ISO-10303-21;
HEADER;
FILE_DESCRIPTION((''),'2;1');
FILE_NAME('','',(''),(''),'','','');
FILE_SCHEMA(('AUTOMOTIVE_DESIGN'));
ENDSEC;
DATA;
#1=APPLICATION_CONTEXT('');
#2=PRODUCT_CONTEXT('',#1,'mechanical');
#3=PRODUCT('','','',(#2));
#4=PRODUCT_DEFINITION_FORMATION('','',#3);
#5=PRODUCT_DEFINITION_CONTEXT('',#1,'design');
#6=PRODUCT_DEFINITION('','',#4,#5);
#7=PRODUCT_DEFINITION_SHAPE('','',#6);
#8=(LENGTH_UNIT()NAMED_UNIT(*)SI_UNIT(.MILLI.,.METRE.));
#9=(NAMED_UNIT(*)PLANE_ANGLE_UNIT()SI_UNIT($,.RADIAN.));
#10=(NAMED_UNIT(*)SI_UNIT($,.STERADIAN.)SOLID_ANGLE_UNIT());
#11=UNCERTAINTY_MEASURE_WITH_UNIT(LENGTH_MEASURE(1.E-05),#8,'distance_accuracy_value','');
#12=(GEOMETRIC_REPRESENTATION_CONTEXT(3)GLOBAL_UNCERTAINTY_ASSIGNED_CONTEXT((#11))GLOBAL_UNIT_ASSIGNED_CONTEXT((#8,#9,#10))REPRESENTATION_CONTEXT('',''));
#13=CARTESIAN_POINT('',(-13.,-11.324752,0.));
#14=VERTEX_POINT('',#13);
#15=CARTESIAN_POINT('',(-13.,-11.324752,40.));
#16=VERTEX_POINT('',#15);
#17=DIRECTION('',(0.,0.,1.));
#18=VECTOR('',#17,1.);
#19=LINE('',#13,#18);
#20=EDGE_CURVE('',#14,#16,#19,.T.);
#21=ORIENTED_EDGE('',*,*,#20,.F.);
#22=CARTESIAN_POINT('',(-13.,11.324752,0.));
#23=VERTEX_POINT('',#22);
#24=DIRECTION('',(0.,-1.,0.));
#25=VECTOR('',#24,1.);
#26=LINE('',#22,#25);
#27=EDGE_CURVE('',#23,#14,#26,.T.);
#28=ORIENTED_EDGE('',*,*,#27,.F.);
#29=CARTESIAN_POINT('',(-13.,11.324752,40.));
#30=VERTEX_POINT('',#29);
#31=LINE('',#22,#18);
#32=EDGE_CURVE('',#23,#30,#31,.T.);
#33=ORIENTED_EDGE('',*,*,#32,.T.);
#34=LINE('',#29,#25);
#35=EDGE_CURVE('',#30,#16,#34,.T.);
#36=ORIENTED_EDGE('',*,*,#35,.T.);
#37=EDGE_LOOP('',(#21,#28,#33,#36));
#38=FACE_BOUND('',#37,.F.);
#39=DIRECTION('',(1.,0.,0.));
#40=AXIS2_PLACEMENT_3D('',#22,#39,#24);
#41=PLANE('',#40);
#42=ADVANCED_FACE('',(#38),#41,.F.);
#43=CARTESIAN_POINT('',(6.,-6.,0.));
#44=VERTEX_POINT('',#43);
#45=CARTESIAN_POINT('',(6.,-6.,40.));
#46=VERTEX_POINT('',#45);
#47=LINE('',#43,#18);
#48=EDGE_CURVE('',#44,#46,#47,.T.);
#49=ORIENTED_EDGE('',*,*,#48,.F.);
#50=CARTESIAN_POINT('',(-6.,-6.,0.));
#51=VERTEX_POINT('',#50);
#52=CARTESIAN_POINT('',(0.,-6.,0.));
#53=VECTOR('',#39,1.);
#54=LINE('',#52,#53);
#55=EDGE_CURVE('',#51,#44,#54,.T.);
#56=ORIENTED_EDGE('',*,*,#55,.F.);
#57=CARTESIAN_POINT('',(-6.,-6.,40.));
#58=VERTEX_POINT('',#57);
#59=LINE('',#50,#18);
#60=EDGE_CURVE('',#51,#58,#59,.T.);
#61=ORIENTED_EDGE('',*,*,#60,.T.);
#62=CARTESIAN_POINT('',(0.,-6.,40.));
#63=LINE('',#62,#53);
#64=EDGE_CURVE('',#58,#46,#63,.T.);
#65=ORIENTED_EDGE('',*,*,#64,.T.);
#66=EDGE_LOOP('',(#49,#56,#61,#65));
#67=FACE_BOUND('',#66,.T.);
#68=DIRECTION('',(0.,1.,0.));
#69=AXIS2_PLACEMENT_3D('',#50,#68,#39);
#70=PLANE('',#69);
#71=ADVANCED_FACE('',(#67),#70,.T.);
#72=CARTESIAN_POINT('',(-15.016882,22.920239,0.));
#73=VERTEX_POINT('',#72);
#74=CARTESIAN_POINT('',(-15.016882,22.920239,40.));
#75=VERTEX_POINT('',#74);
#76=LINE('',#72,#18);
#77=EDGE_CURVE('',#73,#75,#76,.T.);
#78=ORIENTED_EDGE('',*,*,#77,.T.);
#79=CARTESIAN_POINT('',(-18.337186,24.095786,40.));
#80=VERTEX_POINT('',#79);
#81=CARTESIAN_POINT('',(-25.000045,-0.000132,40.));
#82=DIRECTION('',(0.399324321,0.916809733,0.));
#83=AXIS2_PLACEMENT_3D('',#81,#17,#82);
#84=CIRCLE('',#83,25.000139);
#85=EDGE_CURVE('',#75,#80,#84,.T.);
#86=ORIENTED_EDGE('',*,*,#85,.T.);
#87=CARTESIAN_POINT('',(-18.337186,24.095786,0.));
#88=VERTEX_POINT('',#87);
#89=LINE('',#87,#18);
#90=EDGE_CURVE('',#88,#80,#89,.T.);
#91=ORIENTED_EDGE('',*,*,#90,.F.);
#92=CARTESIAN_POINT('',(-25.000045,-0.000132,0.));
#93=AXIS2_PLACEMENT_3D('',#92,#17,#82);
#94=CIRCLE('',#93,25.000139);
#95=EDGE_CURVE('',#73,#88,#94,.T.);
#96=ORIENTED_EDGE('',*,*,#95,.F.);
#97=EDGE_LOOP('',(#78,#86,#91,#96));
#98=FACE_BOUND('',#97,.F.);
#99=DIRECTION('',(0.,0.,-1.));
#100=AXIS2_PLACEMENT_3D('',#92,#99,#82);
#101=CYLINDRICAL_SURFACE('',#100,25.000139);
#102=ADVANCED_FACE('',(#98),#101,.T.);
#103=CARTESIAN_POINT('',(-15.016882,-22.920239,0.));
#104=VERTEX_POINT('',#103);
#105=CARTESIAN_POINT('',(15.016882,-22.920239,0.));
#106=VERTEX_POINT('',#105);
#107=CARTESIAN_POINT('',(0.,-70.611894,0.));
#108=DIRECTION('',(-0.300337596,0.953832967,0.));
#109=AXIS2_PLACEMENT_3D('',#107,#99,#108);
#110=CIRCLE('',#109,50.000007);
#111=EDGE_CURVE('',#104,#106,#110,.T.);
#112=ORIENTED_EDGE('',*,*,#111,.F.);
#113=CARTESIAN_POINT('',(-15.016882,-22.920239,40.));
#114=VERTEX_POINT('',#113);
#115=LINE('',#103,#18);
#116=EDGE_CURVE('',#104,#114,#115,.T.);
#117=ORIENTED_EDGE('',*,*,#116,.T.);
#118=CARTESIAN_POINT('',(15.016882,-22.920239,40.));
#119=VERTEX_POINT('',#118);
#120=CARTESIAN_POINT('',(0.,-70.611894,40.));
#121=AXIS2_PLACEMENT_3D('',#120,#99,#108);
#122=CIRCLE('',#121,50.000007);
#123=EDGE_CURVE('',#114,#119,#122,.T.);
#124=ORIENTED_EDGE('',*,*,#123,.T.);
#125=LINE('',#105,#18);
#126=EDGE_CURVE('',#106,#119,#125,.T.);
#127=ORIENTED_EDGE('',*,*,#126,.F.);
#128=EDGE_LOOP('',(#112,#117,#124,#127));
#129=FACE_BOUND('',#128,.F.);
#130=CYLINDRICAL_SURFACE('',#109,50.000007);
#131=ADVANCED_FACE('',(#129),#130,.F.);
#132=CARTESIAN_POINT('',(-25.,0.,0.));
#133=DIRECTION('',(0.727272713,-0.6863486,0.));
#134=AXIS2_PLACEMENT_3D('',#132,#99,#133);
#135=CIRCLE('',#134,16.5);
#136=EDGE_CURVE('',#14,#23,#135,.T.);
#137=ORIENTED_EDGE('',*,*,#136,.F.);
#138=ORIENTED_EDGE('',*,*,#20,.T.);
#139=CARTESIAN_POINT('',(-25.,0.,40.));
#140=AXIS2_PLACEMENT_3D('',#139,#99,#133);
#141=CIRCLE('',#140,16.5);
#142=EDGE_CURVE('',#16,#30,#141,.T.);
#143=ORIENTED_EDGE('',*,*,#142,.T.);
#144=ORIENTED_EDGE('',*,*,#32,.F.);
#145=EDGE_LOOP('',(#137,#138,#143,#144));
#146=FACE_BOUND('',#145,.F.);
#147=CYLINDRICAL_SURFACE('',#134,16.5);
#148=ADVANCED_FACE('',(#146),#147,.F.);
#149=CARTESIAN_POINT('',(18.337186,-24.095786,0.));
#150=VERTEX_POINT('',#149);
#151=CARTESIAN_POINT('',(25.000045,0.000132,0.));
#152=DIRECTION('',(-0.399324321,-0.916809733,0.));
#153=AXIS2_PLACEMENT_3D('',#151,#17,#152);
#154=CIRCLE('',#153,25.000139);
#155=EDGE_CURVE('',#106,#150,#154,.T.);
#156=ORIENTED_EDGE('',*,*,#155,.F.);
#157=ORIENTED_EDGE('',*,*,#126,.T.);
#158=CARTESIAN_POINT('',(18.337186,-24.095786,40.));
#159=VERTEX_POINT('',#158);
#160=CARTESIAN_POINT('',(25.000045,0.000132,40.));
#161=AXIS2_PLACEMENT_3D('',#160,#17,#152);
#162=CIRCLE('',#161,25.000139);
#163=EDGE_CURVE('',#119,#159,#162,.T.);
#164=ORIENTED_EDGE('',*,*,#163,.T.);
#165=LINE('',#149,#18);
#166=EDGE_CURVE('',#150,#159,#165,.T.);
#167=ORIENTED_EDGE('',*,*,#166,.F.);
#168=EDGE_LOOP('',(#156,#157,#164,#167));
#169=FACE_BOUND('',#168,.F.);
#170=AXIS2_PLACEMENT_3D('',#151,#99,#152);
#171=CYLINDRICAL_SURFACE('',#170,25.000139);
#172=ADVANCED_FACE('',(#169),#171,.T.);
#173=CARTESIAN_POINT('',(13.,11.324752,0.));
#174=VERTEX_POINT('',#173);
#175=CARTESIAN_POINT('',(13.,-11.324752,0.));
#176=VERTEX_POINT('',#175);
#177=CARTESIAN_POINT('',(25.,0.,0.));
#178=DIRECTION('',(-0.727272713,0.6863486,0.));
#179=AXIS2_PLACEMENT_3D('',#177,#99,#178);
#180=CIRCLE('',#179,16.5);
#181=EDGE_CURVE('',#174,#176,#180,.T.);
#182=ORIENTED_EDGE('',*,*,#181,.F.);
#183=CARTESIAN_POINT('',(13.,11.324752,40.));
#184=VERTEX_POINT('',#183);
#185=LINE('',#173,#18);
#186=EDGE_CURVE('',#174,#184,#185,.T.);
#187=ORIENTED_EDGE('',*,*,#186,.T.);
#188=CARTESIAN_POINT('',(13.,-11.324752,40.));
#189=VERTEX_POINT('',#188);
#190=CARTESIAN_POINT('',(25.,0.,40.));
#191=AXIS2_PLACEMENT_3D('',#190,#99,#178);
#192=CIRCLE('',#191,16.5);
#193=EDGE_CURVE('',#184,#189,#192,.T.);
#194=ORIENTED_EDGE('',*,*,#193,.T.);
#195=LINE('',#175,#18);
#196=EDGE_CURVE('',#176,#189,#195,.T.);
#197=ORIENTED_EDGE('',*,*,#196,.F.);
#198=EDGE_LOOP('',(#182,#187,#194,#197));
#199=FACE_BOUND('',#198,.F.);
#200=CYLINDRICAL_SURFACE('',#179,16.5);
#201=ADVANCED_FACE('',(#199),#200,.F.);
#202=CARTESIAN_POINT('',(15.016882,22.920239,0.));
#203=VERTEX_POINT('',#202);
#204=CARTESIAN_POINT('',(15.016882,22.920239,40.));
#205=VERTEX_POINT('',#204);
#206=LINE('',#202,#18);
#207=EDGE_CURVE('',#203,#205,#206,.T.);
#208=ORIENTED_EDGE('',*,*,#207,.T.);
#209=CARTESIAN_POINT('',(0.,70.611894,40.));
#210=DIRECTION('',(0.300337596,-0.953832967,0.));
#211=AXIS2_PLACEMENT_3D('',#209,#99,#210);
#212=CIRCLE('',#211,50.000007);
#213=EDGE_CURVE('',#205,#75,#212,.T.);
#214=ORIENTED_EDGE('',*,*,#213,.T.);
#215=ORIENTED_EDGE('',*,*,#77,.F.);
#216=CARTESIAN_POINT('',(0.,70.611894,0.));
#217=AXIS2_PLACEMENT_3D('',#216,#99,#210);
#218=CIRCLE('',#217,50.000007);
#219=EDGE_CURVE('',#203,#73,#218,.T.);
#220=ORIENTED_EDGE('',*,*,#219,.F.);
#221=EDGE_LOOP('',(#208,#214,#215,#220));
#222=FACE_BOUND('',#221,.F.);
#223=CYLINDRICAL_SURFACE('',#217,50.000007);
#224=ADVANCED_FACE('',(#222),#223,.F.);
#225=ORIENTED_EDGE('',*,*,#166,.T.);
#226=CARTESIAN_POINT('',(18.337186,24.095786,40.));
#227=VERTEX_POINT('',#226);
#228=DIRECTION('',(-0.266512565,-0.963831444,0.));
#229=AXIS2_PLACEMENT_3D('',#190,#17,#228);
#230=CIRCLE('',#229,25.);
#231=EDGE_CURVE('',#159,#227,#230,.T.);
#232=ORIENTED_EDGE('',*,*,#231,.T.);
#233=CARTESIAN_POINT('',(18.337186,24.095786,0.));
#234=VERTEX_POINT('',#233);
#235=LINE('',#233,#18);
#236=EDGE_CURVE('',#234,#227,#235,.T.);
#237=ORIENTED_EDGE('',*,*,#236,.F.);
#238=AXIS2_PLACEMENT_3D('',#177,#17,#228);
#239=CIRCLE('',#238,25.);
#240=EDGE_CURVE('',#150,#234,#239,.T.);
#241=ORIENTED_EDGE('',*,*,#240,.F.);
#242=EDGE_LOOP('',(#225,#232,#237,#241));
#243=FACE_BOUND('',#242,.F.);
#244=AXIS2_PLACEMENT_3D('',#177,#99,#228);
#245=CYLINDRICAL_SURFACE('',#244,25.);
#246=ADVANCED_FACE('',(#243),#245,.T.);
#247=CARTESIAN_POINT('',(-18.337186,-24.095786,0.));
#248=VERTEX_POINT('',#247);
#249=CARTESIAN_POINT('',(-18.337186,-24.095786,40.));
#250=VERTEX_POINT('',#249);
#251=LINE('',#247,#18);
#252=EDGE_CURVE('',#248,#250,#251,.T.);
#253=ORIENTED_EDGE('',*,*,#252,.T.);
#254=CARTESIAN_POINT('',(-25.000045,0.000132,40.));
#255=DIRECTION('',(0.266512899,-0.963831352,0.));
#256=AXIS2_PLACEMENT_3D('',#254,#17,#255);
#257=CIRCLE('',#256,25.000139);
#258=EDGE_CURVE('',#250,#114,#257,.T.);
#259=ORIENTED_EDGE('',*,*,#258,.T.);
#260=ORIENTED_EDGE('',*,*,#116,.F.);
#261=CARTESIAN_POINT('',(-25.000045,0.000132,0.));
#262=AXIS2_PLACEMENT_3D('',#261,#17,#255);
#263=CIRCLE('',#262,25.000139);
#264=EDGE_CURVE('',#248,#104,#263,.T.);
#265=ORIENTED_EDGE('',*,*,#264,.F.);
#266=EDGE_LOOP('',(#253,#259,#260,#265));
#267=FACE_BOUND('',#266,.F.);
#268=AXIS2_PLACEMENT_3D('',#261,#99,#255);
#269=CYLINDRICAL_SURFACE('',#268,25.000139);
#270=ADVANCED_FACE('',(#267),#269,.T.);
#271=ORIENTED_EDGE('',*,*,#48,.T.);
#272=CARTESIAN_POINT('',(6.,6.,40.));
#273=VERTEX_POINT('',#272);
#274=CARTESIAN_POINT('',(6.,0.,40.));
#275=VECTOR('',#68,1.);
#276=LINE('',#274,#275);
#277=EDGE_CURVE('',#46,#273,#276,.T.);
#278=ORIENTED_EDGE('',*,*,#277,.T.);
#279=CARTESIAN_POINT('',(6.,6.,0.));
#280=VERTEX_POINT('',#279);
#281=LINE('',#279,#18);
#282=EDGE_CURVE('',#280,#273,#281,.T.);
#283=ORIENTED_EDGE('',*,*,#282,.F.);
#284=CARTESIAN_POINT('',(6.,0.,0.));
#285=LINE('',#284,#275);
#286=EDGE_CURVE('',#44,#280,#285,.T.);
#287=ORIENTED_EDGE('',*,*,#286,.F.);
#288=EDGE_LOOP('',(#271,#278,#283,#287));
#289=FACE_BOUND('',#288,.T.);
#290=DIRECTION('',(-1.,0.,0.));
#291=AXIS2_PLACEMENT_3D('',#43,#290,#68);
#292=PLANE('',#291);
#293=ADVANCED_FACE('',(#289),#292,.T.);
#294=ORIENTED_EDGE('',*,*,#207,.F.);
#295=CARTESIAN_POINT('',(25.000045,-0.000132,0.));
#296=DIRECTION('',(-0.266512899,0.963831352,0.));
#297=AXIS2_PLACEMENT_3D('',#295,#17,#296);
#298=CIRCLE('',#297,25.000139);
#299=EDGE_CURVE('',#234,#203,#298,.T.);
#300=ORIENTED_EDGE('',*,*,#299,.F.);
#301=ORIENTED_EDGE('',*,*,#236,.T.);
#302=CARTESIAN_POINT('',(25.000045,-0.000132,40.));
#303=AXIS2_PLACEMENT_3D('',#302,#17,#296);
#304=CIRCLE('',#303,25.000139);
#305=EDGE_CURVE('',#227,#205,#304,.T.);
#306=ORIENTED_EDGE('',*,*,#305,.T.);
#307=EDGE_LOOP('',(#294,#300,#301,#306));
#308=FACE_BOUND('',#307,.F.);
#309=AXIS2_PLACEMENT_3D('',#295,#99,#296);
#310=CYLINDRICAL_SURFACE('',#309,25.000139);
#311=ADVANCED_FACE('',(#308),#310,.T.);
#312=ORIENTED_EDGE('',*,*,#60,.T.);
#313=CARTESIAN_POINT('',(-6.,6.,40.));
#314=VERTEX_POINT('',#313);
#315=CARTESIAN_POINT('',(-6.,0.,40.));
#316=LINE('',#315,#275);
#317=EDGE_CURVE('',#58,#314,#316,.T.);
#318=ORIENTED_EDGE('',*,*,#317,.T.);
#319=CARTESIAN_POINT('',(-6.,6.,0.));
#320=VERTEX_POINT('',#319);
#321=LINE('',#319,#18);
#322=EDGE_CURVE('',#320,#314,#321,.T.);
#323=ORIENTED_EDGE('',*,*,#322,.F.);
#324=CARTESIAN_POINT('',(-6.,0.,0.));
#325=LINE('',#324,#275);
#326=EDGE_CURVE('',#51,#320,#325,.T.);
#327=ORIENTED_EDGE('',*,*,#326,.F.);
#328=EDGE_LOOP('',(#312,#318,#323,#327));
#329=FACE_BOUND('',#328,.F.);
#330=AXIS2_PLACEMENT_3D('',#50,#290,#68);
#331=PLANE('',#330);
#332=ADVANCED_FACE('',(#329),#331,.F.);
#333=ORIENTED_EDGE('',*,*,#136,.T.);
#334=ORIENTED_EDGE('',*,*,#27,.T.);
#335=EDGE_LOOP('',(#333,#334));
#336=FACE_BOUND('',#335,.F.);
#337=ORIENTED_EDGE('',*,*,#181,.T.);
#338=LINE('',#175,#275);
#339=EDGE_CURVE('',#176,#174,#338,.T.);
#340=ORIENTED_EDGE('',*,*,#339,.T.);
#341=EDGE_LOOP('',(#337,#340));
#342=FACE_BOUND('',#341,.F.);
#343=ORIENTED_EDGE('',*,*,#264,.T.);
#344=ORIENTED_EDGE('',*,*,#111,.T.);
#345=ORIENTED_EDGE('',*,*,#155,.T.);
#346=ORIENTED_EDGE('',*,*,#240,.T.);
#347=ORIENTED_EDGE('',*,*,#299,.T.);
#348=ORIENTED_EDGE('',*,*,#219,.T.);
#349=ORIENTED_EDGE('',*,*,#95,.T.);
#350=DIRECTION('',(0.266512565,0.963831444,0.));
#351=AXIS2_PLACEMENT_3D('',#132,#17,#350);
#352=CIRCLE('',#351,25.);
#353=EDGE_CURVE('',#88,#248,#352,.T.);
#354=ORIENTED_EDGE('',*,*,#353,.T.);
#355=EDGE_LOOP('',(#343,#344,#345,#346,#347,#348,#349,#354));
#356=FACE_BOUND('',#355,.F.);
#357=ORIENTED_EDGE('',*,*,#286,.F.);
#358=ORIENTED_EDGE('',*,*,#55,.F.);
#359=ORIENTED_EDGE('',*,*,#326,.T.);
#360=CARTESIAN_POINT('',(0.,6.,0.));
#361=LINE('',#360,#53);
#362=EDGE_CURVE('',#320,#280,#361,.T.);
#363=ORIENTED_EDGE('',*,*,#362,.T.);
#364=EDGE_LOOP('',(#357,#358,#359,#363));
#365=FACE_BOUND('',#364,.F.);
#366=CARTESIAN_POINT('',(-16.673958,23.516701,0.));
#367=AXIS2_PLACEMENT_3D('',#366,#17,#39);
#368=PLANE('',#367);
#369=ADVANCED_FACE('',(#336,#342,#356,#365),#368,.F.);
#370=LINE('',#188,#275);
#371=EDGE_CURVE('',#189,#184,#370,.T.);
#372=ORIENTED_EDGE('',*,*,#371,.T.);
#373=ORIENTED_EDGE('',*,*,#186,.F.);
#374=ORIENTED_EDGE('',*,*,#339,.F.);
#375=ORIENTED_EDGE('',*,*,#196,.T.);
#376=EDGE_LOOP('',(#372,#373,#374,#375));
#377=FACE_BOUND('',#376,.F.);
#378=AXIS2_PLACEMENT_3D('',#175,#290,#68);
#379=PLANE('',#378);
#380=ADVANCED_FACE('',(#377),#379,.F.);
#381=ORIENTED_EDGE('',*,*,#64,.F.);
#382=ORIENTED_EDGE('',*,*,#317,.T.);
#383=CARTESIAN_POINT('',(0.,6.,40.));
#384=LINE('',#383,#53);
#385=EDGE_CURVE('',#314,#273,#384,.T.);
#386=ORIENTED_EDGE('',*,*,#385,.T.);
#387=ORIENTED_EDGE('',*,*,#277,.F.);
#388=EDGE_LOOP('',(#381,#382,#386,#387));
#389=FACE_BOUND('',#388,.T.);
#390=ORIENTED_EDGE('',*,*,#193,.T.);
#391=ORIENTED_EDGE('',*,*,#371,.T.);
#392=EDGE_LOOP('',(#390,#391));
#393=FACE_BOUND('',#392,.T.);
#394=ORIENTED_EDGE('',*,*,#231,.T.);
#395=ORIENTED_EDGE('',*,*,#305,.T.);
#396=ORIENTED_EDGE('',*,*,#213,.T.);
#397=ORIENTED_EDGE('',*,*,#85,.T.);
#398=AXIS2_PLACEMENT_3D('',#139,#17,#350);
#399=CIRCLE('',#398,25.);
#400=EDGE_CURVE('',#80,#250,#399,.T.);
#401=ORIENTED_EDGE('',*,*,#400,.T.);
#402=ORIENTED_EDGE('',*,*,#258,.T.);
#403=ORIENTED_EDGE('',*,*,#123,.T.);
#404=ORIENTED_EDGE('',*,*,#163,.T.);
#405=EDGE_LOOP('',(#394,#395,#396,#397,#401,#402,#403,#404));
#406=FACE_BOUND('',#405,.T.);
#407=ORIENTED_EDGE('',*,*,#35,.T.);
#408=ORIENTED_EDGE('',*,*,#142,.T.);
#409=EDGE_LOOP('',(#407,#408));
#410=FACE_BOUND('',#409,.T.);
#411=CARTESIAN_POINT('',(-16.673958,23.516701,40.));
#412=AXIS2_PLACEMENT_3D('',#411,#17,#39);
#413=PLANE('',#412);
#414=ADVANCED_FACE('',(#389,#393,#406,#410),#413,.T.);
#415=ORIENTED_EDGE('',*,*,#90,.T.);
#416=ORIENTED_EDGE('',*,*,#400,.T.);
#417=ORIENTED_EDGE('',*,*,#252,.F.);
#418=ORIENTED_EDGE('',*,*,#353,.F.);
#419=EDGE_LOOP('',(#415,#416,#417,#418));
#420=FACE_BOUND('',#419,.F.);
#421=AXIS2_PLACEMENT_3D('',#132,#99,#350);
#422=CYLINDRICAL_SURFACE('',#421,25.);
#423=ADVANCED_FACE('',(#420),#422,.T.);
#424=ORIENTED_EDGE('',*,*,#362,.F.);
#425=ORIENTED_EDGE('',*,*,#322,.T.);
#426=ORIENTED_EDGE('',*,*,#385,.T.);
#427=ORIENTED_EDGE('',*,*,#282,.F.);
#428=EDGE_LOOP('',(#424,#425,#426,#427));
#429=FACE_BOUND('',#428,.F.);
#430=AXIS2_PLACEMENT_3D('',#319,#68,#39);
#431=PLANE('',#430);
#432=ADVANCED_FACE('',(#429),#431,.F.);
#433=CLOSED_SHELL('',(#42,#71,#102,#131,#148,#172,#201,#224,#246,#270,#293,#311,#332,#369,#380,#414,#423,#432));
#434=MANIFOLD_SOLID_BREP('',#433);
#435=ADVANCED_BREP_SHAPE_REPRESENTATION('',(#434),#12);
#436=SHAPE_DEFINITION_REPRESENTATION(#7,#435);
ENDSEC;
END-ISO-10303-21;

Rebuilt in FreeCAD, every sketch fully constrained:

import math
import FreeCAD as App
import Part
import Sketcher

V = App.Vector

doc = App.newDocument("Part")
params = doc.addObject("Spreadsheet::Sheet", "Params")
for row, (alias, value) in enumerate([
    ("sketch1_radius", "25 mm"),
    ("sketch1_radius2", "16.5 mm"),
    ("sketch1_width", "12 mm"),
    ("pad1_length", "40 mm"),
], start=1):
    params.set(f"A{row}", alias)
    params.set(f"B{row}", "=" + value)
    params.setAlias(f"B{row}", alias)

body = doc.addObject("PartDesign::Body", "Body")

# Sketch on XY plane
sketch1 = body.newObject("Sketcher::SketchObject", "Sketch")
sketch1.AttachmentSupport = (doc.getObject("XY_Plane"), [""])
sketch1.MapMode = "FlatFace"
sketch1.addGeometry([
    Part.ArcOfCircle(Part.Circle(V(-25, 0, 0), V(0, 0, 1), 25), math.radians(66.46), math.radians(74.54)),  # 0
    Part.ArcOfCircle(Part.Circle(V(-25, 0, 0), V(0, 0, 1), 25), math.radians(75), math.radians(285)),  # 1
    Part.ArcOfCircle(Part.Circle(V(-25, 0, 0), V(0, 0, 1), 25), math.radians(-74.54), math.radians(-66.46)),  # 2
    Part.ArcOfCircle(Part.Circle(V(0, -70.6, 0), V(0, 0, 1), 50), math.radians(73), math.radians(107)),  # 3
    Part.ArcOfCircle(Part.Circle(V(25, 0, 0), V(0, 0, 1), 25), math.radians(-113.54), math.radians(-105.46)),  # 4
    Part.ArcOfCircle(Part.Circle(V(25, 0, 0), V(0, 0, 1), 25), math.radians(-105), math.radians(105)),  # 5
    Part.ArcOfCircle(Part.Circle(V(25, 0, 0), V(0, 0, 1), 25), math.radians(105.46), math.radians(113.54)),  # 6
    Part.ArcOfCircle(Part.Circle(V(0, 70.6, 0), V(0, 0, 1), 50), math.radians(-107), math.radians(-73)),  # 7
    Part.LineSegment(V(-13, 11.3, 0), V(-13, -11.3, 0)),  # 8
    Part.ArcOfCircle(Part.Circle(V(-25, 0, 0), V(0, 0, 1), 16.5), math.radians(43), math.radians(317)),  # 9
    Part.LineSegment(V(6, -6, 0), V(-6, -6, 0)),  # 10
    Part.LineSegment(V(-6, -6, 0), V(-6, 6, 0)),  # 11
    Part.LineSegment(V(-6, 6, 0), V(6, 6, 0)),  # 12
    Part.LineSegment(V(6, 6, 0), V(6, -6, 0)),  # 13
    Part.ArcOfCircle(Part.Circle(V(25, 0, 0), V(0, 0, 1), 16.5), math.radians(-137), math.radians(137)),  # 14
    Part.LineSegment(V(13, -11.3, 0), V(13, 11.3, 0)),  # 15
], False)
sketch1.addConstraint([
    Sketcher.Constraint("Tangent", 0, 2, 1, 1),
    Sketcher.Constraint("Tangent", 1, 2, 2, 1),
    Sketcher.Constraint("Coincident", 2, 2, 3, 2),
    Sketcher.Constraint("Coincident", 3, 1, 4, 1),
    Sketcher.Constraint("Tangent", 4, 2, 5, 1),
    Sketcher.Constraint("Tangent", 5, 2, 6, 1),
    Sketcher.Constraint("Coincident", 6, 2, 7, 2),
    Sketcher.Constraint("Coincident", 7, 1, 0, 1),
    Sketcher.Constraint("Coincident", 8, 1, 9, 1),
    Sketcher.Constraint("Coincident", 9, 2, 8, 2),
    Sketcher.Constraint("Coincident", 10, 2, 11, 1),
    Sketcher.Constraint("Coincident", 11, 2, 12, 1),
    Sketcher.Constraint("Coincident", 12, 2, 13, 1),
    Sketcher.Constraint("Coincident", 13, 2, 10, 1),
    Sketcher.Constraint("Coincident", 14, 1, 15, 1),
    Sketcher.Constraint("Coincident", 15, 2, 14, 2),
    Sketcher.Constraint("Vertical", 8),
    Sketcher.Constraint("Horizontal", 10),
    Sketcher.Constraint("Vertical", 11),
    Sketcher.Constraint("Horizontal", 12),
    Sketcher.Constraint("Vertical", 13),
    Sketcher.Constraint("Vertical", 15),
    Sketcher.Constraint("Coincident", 9, 3, 1, 3),
    Sketcher.Constraint("Coincident", 14, 3, 5, 3),
    Sketcher.Constraint("Equal", 0, 2),
    Sketcher.Constraint("Equal", 2, 4),
    Sketcher.Constraint("Equal", 1, 5),
    Sketcher.Constraint("Equal", 4, 6),
    Sketcher.Constraint("Equal", 3, 7),
    Sketcher.Constraint("Equal", 9, 14),
    Sketcher.Constraint("Symmetric", 0, 3, 4, 3, -1, 1),
    Sketcher.Constraint("Symmetric", 3, 3, 7, 3, -1, 1),
    Sketcher.Constraint("Symmetric", 10, 2, 12, 2, -1, 1),
    Sketcher.Constraint("Symmetric", 2, 2, 3, 1, -2),
    Sketcher.Constraint("Horizontal", 1, 2, 4, 2),
    Sketcher.Constraint("Horizontal", 0, 2, 5, 2),
    Sketcher.Constraint("Horizontal", 9, 2, 14, 1),
    Sketcher.Constraint("Vertical", 0, 2, 1, 2),
    Sketcher.Constraint("Equal", 12, 11),
    Sketcher.Constraint("Radius", 1, 25.0),
    Sketcher.Constraint("Radius", 9, 16.5),
    Sketcher.Constraint("DistanceX", 10, 2, 10, 1, 12.0),
    Sketcher.Constraint("DistanceX", 1, 3, -1, 1, 25.0),
    Sketcher.Constraint("DistanceX", 8, 1, -1, 1, 13.0),
    Sketcher.Constraint("Radius", 0, 25.000139),
    Sketcher.Constraint("Radius", 3, 50.000007),
    Sketcher.Constraint("DistanceX", 2, 2, -1, 1, 15.016882),
    Sketcher.Constraint("DistanceX", 2, 3, 0, 2, 6.662859),
])
sketch1.setExpression("Constraints[39]", "Params.sketch1_radius")
sketch1.setExpression("Constraints[40]", "Params.sketch1_radius2")
sketch1.setExpression("Constraints[41]", "Params.sketch1_width")
pad1 = body.newObject("PartDesign::Pad", "Pad")
pad1.Profile = sketch1
pad1.setExpression("Length", "Params.pad1_length")

doc.recompute()
